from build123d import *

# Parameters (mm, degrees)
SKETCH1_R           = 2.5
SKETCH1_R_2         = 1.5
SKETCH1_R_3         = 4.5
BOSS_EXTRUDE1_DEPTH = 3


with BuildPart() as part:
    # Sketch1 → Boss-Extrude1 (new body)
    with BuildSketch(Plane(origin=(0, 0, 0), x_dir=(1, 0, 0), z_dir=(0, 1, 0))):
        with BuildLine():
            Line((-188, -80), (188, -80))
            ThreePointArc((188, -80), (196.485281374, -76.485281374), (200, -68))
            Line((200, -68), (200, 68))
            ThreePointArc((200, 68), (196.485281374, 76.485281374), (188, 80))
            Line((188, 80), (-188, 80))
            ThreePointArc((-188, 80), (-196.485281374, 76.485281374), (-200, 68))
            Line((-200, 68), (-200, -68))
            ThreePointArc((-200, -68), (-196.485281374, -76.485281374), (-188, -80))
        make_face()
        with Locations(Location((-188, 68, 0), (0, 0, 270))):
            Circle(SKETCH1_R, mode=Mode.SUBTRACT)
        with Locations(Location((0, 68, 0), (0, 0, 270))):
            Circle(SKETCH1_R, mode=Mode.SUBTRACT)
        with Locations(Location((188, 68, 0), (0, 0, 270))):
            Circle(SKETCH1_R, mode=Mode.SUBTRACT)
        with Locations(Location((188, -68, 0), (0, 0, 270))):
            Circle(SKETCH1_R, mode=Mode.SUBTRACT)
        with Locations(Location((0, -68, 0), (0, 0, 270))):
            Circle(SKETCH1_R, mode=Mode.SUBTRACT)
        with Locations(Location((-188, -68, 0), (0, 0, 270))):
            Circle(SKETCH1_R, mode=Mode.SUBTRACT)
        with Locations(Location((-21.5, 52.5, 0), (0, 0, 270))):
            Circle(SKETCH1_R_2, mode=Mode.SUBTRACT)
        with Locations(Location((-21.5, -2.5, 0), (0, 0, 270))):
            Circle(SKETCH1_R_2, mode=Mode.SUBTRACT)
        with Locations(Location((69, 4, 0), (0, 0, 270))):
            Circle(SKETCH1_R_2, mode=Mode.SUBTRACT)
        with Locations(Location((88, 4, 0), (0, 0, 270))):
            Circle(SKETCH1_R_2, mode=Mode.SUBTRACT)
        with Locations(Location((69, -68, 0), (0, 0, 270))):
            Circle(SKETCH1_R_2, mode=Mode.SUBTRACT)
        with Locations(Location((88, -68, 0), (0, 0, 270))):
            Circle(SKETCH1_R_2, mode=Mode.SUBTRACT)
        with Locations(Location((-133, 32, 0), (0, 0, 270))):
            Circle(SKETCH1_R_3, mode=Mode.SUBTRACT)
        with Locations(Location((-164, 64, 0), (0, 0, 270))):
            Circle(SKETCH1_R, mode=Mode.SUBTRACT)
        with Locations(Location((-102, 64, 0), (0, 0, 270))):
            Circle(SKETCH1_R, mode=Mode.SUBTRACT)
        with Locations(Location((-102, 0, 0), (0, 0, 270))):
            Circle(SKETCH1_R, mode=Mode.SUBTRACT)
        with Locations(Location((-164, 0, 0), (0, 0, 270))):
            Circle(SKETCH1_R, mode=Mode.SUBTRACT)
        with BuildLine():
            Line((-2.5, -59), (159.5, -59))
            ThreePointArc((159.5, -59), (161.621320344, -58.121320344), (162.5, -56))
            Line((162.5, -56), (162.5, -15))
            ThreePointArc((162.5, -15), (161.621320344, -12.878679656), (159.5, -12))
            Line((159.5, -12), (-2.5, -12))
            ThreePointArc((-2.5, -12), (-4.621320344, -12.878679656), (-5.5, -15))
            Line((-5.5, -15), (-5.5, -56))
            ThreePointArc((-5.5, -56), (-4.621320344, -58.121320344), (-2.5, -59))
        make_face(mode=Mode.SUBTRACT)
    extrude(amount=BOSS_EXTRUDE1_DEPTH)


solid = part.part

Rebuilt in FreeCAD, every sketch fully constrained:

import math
import FreeCAD as App
import Part
import Sketcher

V = App.Vector

doc = App.newDocument("Part")
params = doc.addObject("Spreadsheet::Sheet", "Params")
for row, (alias, value) in enumerate([
    ("sketch1_diameter", "5 mm"),
    ("sketch1_diameter2", "3 mm"),
    ("sketch1_diameter3", "9 mm"),
    ("sketch1_radius", "12 mm"),
    ("sketch1_radius2", "3 mm"),
    ("pad1_length", "3 mm"),
], start=1):
    params.set(f"A{row}", alias)
    params.set(f"B{row}", "=" + value)
    params.setAlias(f"B{row}", alias)

body = doc.addObject("PartDesign::Body", "Body")

# Sketch on XZ plane
sketch1 = doc.addObject("Sketcher::SketchObject", "Sketch")
body.addObject(sketch1)
sketch1.AttachmentSupport = (doc.XZ_Plane, [""])
sketch1.MapMode = "FlatFace"
sketch1.addGeometry(Part.LineSegment(V(-188, 80, 0), V(188, 80, 0)), False)
sketch1.addGeometry(Part.ArcOfCircle(Part.Circle(V(188, 68, 0), V(0, 0, 1), 12), math.radians(0), math.radians(90)), False)
sketch1.addGeometry(Part.LineSegment(V(200, 68, 0), V(200, -68, 0)), False)
sketch1.addGeometry(Part.ArcOfCircle(Part.Circle(V(188, -68, 0), V(0, 0, 1), 12), math.radians(-90), math.radians(0)), False)
sketch1.addGeometry(Part.LineSegment(V(188, -80, 0), V(-188, -80, 0)), False)
sketch1.addGeometry(Part.ArcOfCircle(Part.Circle(V(-188, -68, 0), V(0, 0, 1), 12), math.radians(-180), math.radians(-90)), False)
sketch1.addGeometry(Part.LineSegment(V(-200, -68, 0), V(-200, 68, 0)), False)
sketch1.addGeometry(Part.ArcOfCircle(Part.Circle(V(-188, 68, 0), V(0, 0, 1), 12), math.radians(90), math.radians(180)), False)
sketch1.addGeometry(Part.Circle(V(-188, 68, 0), V(0, 0, 1), 2.5), False)
sketch1.addGeometry(Part.Circle(V(-21.5, 2.5, 0), V(0, 0, 1), 1.5), False)
sketch1.addGeometry(Part.Circle(V(0, 68, 0), V(0, 0, 1), 2.5), False)
sketch1.addGeometry(Part.Circle(V(69, 68, 0), V(0, 0, 1), 1.5), False)
sketch1.addGeometry(Part.Circle(V(88, 68, 0), V(0, 0, 1), 1.5), False)
sketch1.addGeometry(Part.LineSegment(V(159.5, 59, 0), V(-2.5, 59, 0)), False)
sketch1.addGeometry(Part.ArcOfCircle(Part.Circle(V(-2.5, 56, 0), V(0, 0, 1), 3), math.radians(90), math.radians(180)), False)
sketch1.addGeometry(Part.LineSegment(V(-5.5, 56, 0), V(-5.5, 15, 0)), False)
sketch1.addGeometry(Part.ArcOfCircle(Part.Circle(V(-2.5, 15, 0), V(0, 0, 1), 3), math.radians(180), math.radians(270)), False)
sketch1.addGeometry(Part.LineSegment(V(-2.5, 12, 0), V(159.5, 12, 0)), False)
sketch1.addGeometry(Part.ArcOfCircle(Part.Circle(V(159.5, 15, 0), V(0, 0, 1), 3), math.radians(-90), math.radians(0)), False)
sketch1.addGeometry(Part.LineSegment(V(162.5, 15, 0), V(162.5, 56, 0)), False)
sketch1.addGeometry(Part.ArcOfCircle(Part.Circle(V(159.5, 56, 0), V(0, 0, 1), 3), math.radians(0), math.radians(90)), False)
sketch1.addGeometry(Part.Circle(V(188, 68, 0), V(0, 0, 1), 2.5), False)
sketch1.addGeometry(Part.Circle(V(-164, 0, 0), V(0, 0, 1), 2.5), False)
sketch1.addGeometry(Part.Circle(V(-102, 0, 0), V(0, 0, 1), 2.5), False)
sketch1.addGeometry(Part.Circle(V(-133, -32, 0), V(0, 0, 1), 4.5), False)
sketch1.addGeometry(Part.Circle(V(-188, -68, 0), V(0, 0, 1), 2.5), False)
sketch1.addGeometry(Part.Circle(V(-164, -64, 0), V(0, 0, 1), 2.5), False)
sketch1.addGeometry(Part.Circle(V(-102, -64, 0), V(0, 0, 1), 2.5), False)
sketch1.addGeometry(Part.Circle(V(-21.5, -52.5, 0), V(0, 0, 1), 1.5), False)
sketch1.addGeometry(Part.Circle(V(69, -4, 0), V(0, 0, 1), 1.5), False)
sketch1.addGeometry(Part.Circle(V(88, -4, 0), V(0, 0, 1), 1.5), False)
sketch1.addGeometry(Part.Circle(V(0, -68, 0), V(0, 0, 1), 2.5), False)
sketch1.addGeometry(Part.Circle(V(188, -68, 0), V(0, 0, 1), 2.5), False)
sketch1.addConstraint(Sketcher.Constraint("Tangent", 0, 2, 1, 2))
sketch1.addConstraint(Sketcher.Constraint("Tangent", 1, 1, 2, 1))
sketch1.addConstraint(Sketcher.Constraint("Tangent", 2, 2, 3, 2))
sketch1.addConstraint(Sketcher.Constraint("Tangent", 3, 1, 4, 1))
sketch1.addConstraint(Sketcher.Constraint("Tangent", 4, 2, 5, 2))
sketch1.addConstraint(Sketcher.Constraint("Tangent", 5, 1, 6, 1))
sketch1.addConstraint(Sketcher.Constraint("Tangent", 6, 2, 7, 2))
sketch1.addConstraint(Sketcher.Constraint("Tangent", 7, 1, 0, 1))
sketch1.addConstraint(Sketcher.Constraint("Tangent", 13, 2, 14, 1))
sketch1.addConstraint(Sketcher.Constraint("Tangent", 14, 2, 15, 1))
sketch1.addConstraint(Sketcher.Constraint("Tangent", 15, 2, 16, 1))
sketch1.addConstraint(Sketcher.Constraint("Tangent", 16, 2, 17, 1))
sketch1.addConstraint(Sketcher.Constraint("Tangent", 17, 2, 18, 1))
sketch1.addConstraint(Sketcher.Constraint("Tangent", 18, 2, 19, 1))
sketch1.addConstraint(Sketcher.Constraint("Tangent", 19, 2, 20, 1))
sketch1.addConstraint(Sketcher.Constraint("Tangent", 20, 2, 13, 1))
sketch1.addConstraint(Sketcher.Constraint("Horizontal", 0))
sketch1.addConstraint(Sketcher.Constraint("Vertical", 2))
sketch1.addConstraint(Sketcher.Constraint("Horizontal", 4))
sketch1.addConstraint(Sketcher.Constraint("Vertical", 6))
sketch1.addConstraint(Sketcher.Constraint("Horizontal", 13))
sketch1.addConstraint(Sketcher.Constraint("Vertical", 15))
sketch1.addConstraint(Sketcher.Constraint("Horizontal", 17))
sketch1.addConstraint(Sketcher.Constraint("Vertical", 19))
sketch1.addConstraint(Sketcher.Constraint("Coincident", 8, 3, 7, 3))
sketch1.addConstraint(Sketcher.Constraint("Coincident", 21, 3, 1, 3))
sketch1.addConstraint(Sketcher.Constraint("Coincident", 25, 3, 5, 3))
sketch1.addConstraint(Sketcher.Constraint("Coincident", 32, 3, 3, 3))
sketch1.addConstraint(Sketcher.Constraint("Equal", 1, 3))
sketch1.addConstraint(Sketcher.Constraint("Equal", 3, 5))
sketch1.addConstraint(Sketcher.Constraint("Equal", 5, 7))
sketch1.addConstraint(Sketcher.Constraint("Equal", 8, 10))
sketch1.addConstraint(Sketcher.Constraint("Equal", 9, 11))
sketch1.addConstraint(Sketcher.Constraint("Equal", 11, 12))
sketch1.addConstraint(Sketcher.Constraint("Equal", 14, 16))
sketch1.addConstraint(Sketcher.Constraint("Equal", 16, 18))
sketch1.addConstraint(Sketcher.Constraint("Equal", 18, 20))
sketch1.addConstraint(Sketcher.Constraint("Equal", 10, 21))
sketch1.addConstraint(Sketcher.Constraint("Equal", 21, 22))
sketch1.addConstraint(Sketcher.Constraint("Equal", 22, 23))
sketch1.addConstraint(Sketcher.Constraint("Equal", 23, 25))
sketch1.addConstraint(Sketcher.Constraint("Equal", 25, 26))
sketch1.addConstraint(Sketcher.Constraint("Equal", 26, 27))
sketch1.addConstraint(Sketcher.Constraint("Equal", 12, 28))
sketch1.addConstraint(Sketcher.Constraint("Equal", 28, 29))
sketch1.addConstraint(Sketcher.Constraint("Equal", 29, 30))
sketch1.addConstraint(Sketcher.Constraint("Equal", 27, 31))
sketch1.addConstraint(Sketcher.Constraint("Equal", 31, 32))
sketch1.addConstraint(Sketcher.Constraint("Symmetric", 1, 3, 5, 3, -1, 1))
sketch1.addConstraint(Sketcher.Constraint("Symmetric", 10, 3, 31, 3, -1, 1))
sketch1.addConstraint(Sketcher.Constraint("PointOnObject", 10, 3, -2))
sketch1.addConstraint(Sketcher.Constraint("PointOnObject", 22, 3, -1))
sketch1.addConstraint(Sketcher.Constraint("PointOnObject", 23, 3, -1))
sketch1.addConstraint(Sketcher.Constraint("Horizontal", 8, 3, 10, 3))
sketch1.addConstraint(Sketcher.Constraint("Horizontal", 10, 3, 11, 3))
sketch1.addConstraint(Sketcher.Constraint("Horizontal", 11, 3, 12, 3))
sketch1.addConstraint(Sketcher.Constraint("Horizontal", 26, 3, 27, 3))
sketch1.addConstraint(Sketcher.Constraint("Horizontal", 29, 3, 30, 3))
sketch1.addConstraint(Sketcher.Constraint("Vertical", 22, 3, 26, 3))
sketch1.addConstraint(Sketcher.Constraint("Vertical", 23, 3, 27, 3))
sketch1.addConstraint(Sketcher.Constraint("Vertical", 9, 3, 28, 3))
sketch1.addConstraint(Sketcher.Constraint("Vertical", 11, 3, 29, 3))
sketch1.addConstraint(Sketcher.Constraint("Vertical", 12, 3, 30, 3))
sketch1.addConstraint(Sketcher.Constraint("Diameter", 8, 5.0))
sketch1.addConstraint(Sketcher.Constraint("Diameter", 9, 3.0))
sketch1.addConstraint(Sketcher.Constraint("Diameter", 24, 9.0))
sketch1.addConstraint(Sketcher.Constraint("Radius", 1, 12.0))
sketch1.addConstraint(Sketcher.Constraint("Radius", 14, 3.0))
sketch1.addConstraint(Sketcher.Constraint("DistanceX", 0, 1, 0, 2, 376.0))
sketch1.addConstraint(Sketcher.Constraint("DistanceX", 13, 2, 13, 1, 162.0))
sketch1.addConstraint(Sketcher.Constraint("DistanceY", 2, 2, 2, 1, 136.0))
sketch1.addConstraint(Sketcher.Constraint("DistanceY", 15, 2, 15, 1, 41.0))
sketch1.addConstraint(Sketcher.Constraint("DistanceX", -1, 1, 11, 3, 69.0))
sketch1.addConstraint(Sketcher.Constraint("DistanceX", -1, 1, 12, 3, 88.0))
sketch1.addConstraint(Sketcher.Constraint("DistanceY", -1, 1, 14, 3, 56.0))
sketch1.addConstraint(Sketcher.Constraint("DistanceX", 22, 3, -1, 1, 164.0))
sketch1.addConstraint(Sketcher.Constraint("DistanceX", 23, 3, -1, 1, 102.0))
sketch1.addConstraint(Sketcher.Constraint("DistanceX", 24, 3, -1, 1, 133.0))
sketch1.addConstraint(Sketcher.Constraint("DistanceY", 24, 3, -1, 1, 32.0))
sketch1.addConstraint(Sketcher.Constraint("DistanceY", 26, 3, -1, 1, 64.0))
sketch1.addConstraint(Sketcher.Constraint("DistanceY", 29, 3, -1, 1, 4.0))
sketch1.addConstraint(Sketcher.Constraint("DistanceX", 9, 3, 14, 3, 19.0))
sketch1.addConstraint(Sketcher.Constraint("DistanceY", 28, 3, 9, 3, 55.0))
sketch1.addConstraint(Sketcher.Constraint("DistanceX", 9, 3, -1, 1, 21.5))
sketch1.addConstraint(Sketcher.Constraint("DistanceY", -1, 1, 9, 3, 2.5))
sketch1.setExpression("Constraints[63]", "Params.sketch1_diameter")
sketch1.setExpression("Constraints[64]", "Params.sketch1_diameter2")
sketch1.setExpression("Constraints[65]", "Params.sketch1_diameter3")
sketch1.setExpression("Constraints[66]", "Params.sketch1_radius")
sketch1.setExpression("Constraints[67]", "Params.sketch1_radius2")
pad1 = doc.addObject("PartDesign::Pad", "Pad")
body.addObject(pad1)
pad1.Profile = sketch1
pad1.setExpression("Length", "Params.pad1_length")
pad1.Reversed = True

doc.recompute()
